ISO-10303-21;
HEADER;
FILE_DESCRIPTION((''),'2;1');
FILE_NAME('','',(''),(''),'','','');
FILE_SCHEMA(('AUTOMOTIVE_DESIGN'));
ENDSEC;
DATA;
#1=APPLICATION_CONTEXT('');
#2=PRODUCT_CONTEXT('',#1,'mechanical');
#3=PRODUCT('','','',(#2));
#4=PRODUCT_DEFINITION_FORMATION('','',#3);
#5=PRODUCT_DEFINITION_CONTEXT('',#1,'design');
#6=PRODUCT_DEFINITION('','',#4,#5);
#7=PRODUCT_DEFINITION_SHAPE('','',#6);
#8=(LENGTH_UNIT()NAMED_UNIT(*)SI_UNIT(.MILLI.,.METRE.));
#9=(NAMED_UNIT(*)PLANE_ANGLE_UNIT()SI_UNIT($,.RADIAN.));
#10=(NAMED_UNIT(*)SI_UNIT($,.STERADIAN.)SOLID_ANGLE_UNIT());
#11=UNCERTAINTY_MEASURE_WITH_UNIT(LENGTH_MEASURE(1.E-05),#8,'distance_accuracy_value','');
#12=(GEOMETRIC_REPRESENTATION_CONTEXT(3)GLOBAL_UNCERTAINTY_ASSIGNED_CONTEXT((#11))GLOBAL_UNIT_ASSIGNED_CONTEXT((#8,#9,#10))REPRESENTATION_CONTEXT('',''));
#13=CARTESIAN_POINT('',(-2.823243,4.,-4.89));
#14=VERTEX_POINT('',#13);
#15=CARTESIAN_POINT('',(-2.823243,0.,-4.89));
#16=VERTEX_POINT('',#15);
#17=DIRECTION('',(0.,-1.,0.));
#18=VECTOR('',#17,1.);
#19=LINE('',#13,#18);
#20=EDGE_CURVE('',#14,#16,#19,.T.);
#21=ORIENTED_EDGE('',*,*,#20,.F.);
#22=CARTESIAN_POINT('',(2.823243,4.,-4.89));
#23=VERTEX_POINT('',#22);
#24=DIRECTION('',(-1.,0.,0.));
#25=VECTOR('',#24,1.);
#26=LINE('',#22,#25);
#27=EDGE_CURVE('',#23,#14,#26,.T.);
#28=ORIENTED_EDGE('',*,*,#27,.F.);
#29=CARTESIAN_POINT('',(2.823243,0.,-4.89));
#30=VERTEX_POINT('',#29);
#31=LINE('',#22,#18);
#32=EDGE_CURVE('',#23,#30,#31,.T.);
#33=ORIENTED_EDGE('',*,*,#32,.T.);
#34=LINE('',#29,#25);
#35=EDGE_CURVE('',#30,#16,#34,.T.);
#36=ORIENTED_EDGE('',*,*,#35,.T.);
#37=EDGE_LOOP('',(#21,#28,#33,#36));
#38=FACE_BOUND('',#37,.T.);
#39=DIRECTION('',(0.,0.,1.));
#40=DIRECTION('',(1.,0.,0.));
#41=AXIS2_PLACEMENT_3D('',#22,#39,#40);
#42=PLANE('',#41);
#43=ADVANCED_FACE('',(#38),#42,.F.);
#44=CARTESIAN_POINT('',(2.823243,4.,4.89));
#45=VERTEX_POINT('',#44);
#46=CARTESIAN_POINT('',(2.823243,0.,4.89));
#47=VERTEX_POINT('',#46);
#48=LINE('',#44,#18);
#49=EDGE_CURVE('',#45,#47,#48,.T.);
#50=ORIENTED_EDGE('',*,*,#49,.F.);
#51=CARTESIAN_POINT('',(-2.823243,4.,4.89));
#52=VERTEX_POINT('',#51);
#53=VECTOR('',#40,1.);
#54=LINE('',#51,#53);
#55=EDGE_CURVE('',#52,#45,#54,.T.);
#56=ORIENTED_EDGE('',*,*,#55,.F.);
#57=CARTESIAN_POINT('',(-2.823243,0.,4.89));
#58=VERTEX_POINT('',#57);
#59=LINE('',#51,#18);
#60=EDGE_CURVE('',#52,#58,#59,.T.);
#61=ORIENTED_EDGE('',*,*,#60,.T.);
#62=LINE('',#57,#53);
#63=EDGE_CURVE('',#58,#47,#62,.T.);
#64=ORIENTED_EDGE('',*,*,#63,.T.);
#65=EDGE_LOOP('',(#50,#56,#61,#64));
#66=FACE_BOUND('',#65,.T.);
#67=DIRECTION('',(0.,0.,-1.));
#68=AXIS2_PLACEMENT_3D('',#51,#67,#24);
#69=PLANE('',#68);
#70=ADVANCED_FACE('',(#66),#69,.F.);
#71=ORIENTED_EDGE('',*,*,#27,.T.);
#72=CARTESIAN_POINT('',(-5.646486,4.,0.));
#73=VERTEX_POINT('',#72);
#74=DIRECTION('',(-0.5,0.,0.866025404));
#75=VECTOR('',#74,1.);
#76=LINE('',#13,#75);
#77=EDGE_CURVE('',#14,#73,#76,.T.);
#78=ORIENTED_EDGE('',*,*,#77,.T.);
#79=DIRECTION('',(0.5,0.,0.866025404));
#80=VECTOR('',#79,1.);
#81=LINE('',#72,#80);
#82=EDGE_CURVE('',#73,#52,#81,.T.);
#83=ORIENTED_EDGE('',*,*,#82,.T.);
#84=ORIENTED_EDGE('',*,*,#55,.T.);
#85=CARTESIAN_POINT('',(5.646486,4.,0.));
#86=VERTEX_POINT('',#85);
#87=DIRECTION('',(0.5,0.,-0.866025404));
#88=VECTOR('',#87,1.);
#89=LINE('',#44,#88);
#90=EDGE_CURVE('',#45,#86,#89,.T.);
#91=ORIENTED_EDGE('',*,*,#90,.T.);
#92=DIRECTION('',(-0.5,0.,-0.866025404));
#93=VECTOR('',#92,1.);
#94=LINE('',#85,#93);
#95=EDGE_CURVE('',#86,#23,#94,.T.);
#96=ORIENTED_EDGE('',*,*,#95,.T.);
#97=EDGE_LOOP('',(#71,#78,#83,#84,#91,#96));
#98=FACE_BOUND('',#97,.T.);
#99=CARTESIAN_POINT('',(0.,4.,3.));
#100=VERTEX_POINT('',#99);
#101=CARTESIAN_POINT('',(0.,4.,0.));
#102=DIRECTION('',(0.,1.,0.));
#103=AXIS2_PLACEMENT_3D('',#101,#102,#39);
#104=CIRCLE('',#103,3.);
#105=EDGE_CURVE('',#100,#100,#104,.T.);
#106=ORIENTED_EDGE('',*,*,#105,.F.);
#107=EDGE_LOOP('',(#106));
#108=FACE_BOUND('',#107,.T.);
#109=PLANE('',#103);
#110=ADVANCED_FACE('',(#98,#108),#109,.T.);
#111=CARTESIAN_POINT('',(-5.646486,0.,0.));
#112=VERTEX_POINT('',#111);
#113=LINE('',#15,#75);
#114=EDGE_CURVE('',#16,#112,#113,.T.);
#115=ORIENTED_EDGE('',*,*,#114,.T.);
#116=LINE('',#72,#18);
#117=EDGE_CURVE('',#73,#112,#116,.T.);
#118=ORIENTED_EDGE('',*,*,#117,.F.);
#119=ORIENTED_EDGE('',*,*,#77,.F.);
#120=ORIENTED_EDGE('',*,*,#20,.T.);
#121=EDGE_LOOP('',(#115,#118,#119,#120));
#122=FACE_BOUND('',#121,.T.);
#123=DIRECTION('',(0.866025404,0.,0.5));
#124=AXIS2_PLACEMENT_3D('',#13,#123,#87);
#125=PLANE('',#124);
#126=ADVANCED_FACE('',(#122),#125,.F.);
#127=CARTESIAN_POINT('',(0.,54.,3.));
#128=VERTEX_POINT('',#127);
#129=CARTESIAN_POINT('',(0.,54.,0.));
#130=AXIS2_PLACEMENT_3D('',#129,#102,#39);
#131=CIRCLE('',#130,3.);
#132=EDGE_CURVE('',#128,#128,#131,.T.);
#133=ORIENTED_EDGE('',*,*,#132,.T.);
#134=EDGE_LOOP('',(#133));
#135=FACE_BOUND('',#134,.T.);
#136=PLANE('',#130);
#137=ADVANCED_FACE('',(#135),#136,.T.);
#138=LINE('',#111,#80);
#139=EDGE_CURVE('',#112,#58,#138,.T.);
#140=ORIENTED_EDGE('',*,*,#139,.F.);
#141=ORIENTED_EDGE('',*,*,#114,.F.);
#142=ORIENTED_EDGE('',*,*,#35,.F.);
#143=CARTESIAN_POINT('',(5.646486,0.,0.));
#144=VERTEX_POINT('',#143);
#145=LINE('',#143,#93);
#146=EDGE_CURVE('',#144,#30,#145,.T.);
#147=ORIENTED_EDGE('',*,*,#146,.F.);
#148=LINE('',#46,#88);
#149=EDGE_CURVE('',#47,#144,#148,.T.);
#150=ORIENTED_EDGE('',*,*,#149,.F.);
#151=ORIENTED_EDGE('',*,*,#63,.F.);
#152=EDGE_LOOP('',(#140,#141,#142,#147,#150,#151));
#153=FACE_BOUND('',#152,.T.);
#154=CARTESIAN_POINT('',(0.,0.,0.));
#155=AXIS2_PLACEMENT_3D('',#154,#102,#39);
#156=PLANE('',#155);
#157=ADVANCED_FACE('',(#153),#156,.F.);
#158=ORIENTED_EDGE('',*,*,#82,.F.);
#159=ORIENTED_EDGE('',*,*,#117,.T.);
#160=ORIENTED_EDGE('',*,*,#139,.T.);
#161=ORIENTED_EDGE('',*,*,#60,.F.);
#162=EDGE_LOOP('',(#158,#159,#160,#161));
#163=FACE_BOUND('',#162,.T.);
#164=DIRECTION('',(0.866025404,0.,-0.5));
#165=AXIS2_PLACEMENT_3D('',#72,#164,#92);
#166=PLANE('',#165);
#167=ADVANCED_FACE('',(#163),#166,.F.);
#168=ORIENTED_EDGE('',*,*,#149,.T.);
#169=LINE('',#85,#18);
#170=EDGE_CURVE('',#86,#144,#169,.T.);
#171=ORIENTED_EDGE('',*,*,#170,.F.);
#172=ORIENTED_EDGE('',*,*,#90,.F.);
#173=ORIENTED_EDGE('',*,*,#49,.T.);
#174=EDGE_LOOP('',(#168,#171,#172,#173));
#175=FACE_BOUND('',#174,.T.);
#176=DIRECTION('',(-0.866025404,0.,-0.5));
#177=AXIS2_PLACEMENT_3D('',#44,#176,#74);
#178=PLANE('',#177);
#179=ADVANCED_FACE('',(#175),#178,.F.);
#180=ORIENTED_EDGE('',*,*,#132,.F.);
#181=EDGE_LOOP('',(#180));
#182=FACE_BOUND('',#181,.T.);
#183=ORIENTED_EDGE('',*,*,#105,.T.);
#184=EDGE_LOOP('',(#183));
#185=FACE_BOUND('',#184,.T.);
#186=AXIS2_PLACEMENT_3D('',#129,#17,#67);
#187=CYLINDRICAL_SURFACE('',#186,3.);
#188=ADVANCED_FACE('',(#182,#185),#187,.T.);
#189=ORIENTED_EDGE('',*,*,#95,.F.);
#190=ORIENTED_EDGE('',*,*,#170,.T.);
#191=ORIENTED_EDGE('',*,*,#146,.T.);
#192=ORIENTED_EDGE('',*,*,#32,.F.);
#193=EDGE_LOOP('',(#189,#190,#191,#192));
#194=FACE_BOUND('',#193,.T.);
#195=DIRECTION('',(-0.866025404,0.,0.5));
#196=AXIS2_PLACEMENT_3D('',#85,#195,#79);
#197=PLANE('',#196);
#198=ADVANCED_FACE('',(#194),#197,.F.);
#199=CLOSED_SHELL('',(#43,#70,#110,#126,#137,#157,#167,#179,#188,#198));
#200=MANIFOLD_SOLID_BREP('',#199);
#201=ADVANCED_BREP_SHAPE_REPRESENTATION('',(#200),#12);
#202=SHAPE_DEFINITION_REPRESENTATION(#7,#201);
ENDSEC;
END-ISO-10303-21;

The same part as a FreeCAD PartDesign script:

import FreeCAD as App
import Part
import Sketcher
from FreeCAD import Vector
Q = App.Units.Quantity

doc = App.newDocument("Part")
body = doc.addObject("PartDesign::Body", "Body")

# Sketch on XZ plane
sketch1 = body.newObject("Sketcher::SketchObject", "Sketch")
sketch1.AttachmentSupport = (doc.getObject("XZ_Plane"), [""])
sketch1.MapMode = "FlatFace"
sketch1.addGeometry([
    Part.LineSegment(Vector(3, 5, 0), Vector(6, 0, 0)),  # 0
    Part.LineSegment(Vector(6, 0, 0), Vector(3, -5, 0)),  # 1
    Part.LineSegment(Vector(3, -5, 0), Vector(-3, -5, 0)),  # 2
    Part.LineSegment(Vector(-3, -5, 0), Vector(-6, 0, 0)),  # 3
    Part.LineSegment(Vector(-6, 0, 0), Vector(-3, 5, 0)),  # 4
    Part.LineSegment(Vector(-3, 5, 0), Vector(3, 5, 0)),  # 5
], False)
sketch1.addConstraint([
    Sketcher.Constraint("Coincident", 0, 2, 1, 1),
    Sketcher.Constraint("Coincident", 1, 2, 2, 1),
    Sketcher.Constraint("Coincident", 2, 2, 3, 1),
    Sketcher.Constraint("Coincident", 3, 2, 4, 1),
    Sketcher.Constraint("Coincident", 4, 2, 5, 1),
    Sketcher.Constraint("Coincident", 5, 2, 0, 1),
    Sketcher.Constraint("Horizontal", 2),
    Sketcher.Constraint("Horizontal", 5),
    Sketcher.Constraint("Symmetric", 0, 2, 3, 2, -1, 1),
    Sketcher.Constraint("Symmetric", 1, 2, 4, 2, -1, 1),
    Sketcher.Constraint("PointOnObject", 0, 2, -1),
    Sketcher.Constraint("Parallel", 0, 3),
    Sketcher.Constraint("Vertical", 2, 2, 4, 2),
    Sketcher.Constraint("Angle", 0, Q("-60 deg")),
    Sketcher.Constraint("DistanceY", 1, 2, -1, 1, 4.89),
    Sketcher.Constraint("DistanceX", 2, 2, 2, 1, 5.646486),
])
pad1 = body.newObject("PartDesign::Pad", "Pad")
pad1.Profile = sketch1
pad1.Length = 4
pad1.Reversed = True

# Sketch on XZ plane
sketch2 = body.newObject("Sketcher::SketchObject", "Sketch001")
sketch2.AttachmentSupport = (doc.getObject("XZ_Plane"), [""])
sketch2.MapMode = "FlatFace"
sketch2.AttachmentOffset = App.Placement(Vector(0, 0, -4), App.Rotation())
sketch2.addGeometry(Part.Circle(Vector(0, 0, 0), Vector(0, 0, 1), 3), False)
sketch2.addConstraint([
    Sketcher.Constraint("Coincident", 0, 3, -1, 1),
    Sketcher.Constraint("Diameter", 0, 6.0),
])
pad2 = body.newObject("PartDesign::Pad", "Pad001")
pad2.Profile = sketch2
pad2.Length = 50
pad2.Reversed = True

doc.recompute()
